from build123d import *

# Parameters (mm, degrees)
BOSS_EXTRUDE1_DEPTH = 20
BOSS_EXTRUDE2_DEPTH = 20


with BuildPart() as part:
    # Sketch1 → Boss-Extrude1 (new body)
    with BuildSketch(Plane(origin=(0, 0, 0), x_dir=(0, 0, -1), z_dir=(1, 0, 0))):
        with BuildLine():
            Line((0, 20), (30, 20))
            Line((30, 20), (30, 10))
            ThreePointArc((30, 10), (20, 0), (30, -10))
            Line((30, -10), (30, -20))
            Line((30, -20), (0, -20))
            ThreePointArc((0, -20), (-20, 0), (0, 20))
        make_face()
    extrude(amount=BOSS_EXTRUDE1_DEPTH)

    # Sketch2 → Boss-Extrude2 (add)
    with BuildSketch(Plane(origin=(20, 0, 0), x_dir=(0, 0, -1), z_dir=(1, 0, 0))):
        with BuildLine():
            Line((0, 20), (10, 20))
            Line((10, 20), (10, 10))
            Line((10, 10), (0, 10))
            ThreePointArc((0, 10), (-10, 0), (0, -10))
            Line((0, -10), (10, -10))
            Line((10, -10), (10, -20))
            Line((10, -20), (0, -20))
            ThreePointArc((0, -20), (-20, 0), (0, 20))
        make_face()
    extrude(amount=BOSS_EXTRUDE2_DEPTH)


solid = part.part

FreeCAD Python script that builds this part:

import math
import FreeCAD as App
import Part
import Sketcher

V = App.Vector
Q = App.Units.Quantity

doc = App.newDocument("Part")
body = doc.addObject("PartDesign::Body", "Body")

sketch1 = doc.addObject("Sketcher::SketchObject", "Sketch")
body.addObject(sketch1)
sketch1.AttachmentSupport = (doc.YZ_Plane, [""])
sketch1.MapMode = "FlatFace"
sketch1.addGeometry([
    Part.LineSegment(V(20, -30, 0), V(20, 0, 0)),
    Part.ArcOfCircle(Part.Circle(V(0, 0, 0), V(0, 0, 1), 20), math.radians(0), math.radians(180)),
    Part.LineSegment(V(-20, 0, 0), V(-20, -30, 0)),
    Part.LineSegment(V(-20, -30, 0), V(-10, -30, 0)),
    Part.ArcOfCircle(Part.Circle(V(0, -30, 0), V(0, 0, 1), 10), math.radians(0), math.radians(180)),
    Part.LineSegment(V(10, -30, 0), V(20, -30, 0)),
], False)
sketch1.addConstraint([
    Sketcher.Constraint("Tangent", 0, 2, 1, 1),
    Sketcher.Constraint("Tangent", 1, 2, 2, 1),
    Sketcher.Constraint("Coincident", 2, 2, 3, 1),
    Sketcher.Constraint("Coincident", 3, 2, 4, 2),
    Sketcher.Constraint("Coincident", 4, 1, 5, 1),
    Sketcher.Constraint("Coincident", 5, 2, 0, 1),
    Sketcher.Constraint("Vertical", 0),
    Sketcher.Constraint("Vertical", 2),
    Sketcher.Constraint("Horizontal", 3),
    Sketcher.Constraint("Horizontal", 5),
    Sketcher.Constraint("Coincident", 1, 3, -1, 1),
    Sketcher.Constraint("Symmetric", 3, 2, 4, 1, -2),
    Sketcher.Constraint("Horizontal", 4, 3, 2, 2),
    Sketcher.Constraint("Radius", 1, Q("20 mm")),
    Sketcher.Constraint("Radius", 4, Q("10 mm")),
    Sketcher.Constraint("DistanceY", 0, 1, 0, 2, Q("30 mm")),
])
pad1 = doc.addObject("PartDesign::Pad", "Pad")
body.addObject(pad1)
pad1.Profile = sketch1
pad1.Length = 20

sketch2 = doc.addObject("Sketcher::SketchObject", "Sketch001")
body.addObject(sketch2)
sketch2.AttachmentSupport = (doc.YZ_Plane, [""])
sketch2.MapMode = "FlatFace"
sketch2.AttachmentOffset = App.Placement(V(0, 0, 20), App.Rotation())
sketch2.addGeometry([
    Part.LineSegment(V(20, -10, 0), V(20, 0, 0)),
    Part.ArcOfCircle(Part.Circle(V(0, 0, 0), V(0, 0, 1), 20), math.radians(0), math.radians(180)),
    Part.LineSegment(V(-20, 0, 0), V(-20, -10, 0)),
    Part.LineSegment(V(-20, -10, 0), V(-10, -10, 0)),
    Part.LineSegment(V(-10, -10, 0), V(-10, 0, 0)),
    Part.ArcOfCircle(Part.Circle(V(0, 0, 0), V(0, 0, 1), 10), math.radians(0), math.radians(180)),
    Part.LineSegment(V(10, 0, 0), V(10, -10, 0)),
    Part.LineSegment(V(10, -10, 0), V(20, -10, 0)),
], False)
sketch2.addConstraint([
    Sketcher.Constraint("Tangent", 0, 2, 1, 1),
    Sketcher.Constraint("Tangent", 1, 2, 2, 1),
    Sketcher.Constraint("Coincident", 2, 2, 3, 1),
    Sketcher.Constraint("Coincident", 3, 2, 4, 1),
    Sketcher.Constraint("Tangent", 4, 2, 5, 2),
    Sketcher.Constraint("Tangent", 5, 1, 6, 1),
    Sketcher.Constraint("Coincident", 6, 2, 7, 1),
    Sketcher.Constraint("Coincident", 7, 2, 0, 1),
    Sketcher.Constraint("Vertical", 0),
    Sketcher.Constraint("Vertical", 2),
    Sketcher.Constraint("Horizontal", 3),
    Sketcher.Constraint("Vertical", 4),
    Sketcher.Constraint("Vertical", 6),
    Sketcher.Constraint("Horizontal", 7),
    Sketcher.Constraint("Coincident", 1, 3, -1, 1),
    Sketcher.Constraint("Coincident", 5, 3, -1, 1),
    Sketcher.Constraint("Horizontal", 3, 2, 6, 2),
    Sketcher.Constraint("Equal", 7, 0),
    Sketcher.Constraint("Radius", 1, Q("20 mm")),
    Sketcher.Constraint("Radius", 5, Q("10 mm")),
])
pad2 = doc.addObject("PartDesign::Pad", "Pad001")
body.addObject(pad2)
pad2.Profile = sketch2
pad2.Length = 20

doc.recompute()
